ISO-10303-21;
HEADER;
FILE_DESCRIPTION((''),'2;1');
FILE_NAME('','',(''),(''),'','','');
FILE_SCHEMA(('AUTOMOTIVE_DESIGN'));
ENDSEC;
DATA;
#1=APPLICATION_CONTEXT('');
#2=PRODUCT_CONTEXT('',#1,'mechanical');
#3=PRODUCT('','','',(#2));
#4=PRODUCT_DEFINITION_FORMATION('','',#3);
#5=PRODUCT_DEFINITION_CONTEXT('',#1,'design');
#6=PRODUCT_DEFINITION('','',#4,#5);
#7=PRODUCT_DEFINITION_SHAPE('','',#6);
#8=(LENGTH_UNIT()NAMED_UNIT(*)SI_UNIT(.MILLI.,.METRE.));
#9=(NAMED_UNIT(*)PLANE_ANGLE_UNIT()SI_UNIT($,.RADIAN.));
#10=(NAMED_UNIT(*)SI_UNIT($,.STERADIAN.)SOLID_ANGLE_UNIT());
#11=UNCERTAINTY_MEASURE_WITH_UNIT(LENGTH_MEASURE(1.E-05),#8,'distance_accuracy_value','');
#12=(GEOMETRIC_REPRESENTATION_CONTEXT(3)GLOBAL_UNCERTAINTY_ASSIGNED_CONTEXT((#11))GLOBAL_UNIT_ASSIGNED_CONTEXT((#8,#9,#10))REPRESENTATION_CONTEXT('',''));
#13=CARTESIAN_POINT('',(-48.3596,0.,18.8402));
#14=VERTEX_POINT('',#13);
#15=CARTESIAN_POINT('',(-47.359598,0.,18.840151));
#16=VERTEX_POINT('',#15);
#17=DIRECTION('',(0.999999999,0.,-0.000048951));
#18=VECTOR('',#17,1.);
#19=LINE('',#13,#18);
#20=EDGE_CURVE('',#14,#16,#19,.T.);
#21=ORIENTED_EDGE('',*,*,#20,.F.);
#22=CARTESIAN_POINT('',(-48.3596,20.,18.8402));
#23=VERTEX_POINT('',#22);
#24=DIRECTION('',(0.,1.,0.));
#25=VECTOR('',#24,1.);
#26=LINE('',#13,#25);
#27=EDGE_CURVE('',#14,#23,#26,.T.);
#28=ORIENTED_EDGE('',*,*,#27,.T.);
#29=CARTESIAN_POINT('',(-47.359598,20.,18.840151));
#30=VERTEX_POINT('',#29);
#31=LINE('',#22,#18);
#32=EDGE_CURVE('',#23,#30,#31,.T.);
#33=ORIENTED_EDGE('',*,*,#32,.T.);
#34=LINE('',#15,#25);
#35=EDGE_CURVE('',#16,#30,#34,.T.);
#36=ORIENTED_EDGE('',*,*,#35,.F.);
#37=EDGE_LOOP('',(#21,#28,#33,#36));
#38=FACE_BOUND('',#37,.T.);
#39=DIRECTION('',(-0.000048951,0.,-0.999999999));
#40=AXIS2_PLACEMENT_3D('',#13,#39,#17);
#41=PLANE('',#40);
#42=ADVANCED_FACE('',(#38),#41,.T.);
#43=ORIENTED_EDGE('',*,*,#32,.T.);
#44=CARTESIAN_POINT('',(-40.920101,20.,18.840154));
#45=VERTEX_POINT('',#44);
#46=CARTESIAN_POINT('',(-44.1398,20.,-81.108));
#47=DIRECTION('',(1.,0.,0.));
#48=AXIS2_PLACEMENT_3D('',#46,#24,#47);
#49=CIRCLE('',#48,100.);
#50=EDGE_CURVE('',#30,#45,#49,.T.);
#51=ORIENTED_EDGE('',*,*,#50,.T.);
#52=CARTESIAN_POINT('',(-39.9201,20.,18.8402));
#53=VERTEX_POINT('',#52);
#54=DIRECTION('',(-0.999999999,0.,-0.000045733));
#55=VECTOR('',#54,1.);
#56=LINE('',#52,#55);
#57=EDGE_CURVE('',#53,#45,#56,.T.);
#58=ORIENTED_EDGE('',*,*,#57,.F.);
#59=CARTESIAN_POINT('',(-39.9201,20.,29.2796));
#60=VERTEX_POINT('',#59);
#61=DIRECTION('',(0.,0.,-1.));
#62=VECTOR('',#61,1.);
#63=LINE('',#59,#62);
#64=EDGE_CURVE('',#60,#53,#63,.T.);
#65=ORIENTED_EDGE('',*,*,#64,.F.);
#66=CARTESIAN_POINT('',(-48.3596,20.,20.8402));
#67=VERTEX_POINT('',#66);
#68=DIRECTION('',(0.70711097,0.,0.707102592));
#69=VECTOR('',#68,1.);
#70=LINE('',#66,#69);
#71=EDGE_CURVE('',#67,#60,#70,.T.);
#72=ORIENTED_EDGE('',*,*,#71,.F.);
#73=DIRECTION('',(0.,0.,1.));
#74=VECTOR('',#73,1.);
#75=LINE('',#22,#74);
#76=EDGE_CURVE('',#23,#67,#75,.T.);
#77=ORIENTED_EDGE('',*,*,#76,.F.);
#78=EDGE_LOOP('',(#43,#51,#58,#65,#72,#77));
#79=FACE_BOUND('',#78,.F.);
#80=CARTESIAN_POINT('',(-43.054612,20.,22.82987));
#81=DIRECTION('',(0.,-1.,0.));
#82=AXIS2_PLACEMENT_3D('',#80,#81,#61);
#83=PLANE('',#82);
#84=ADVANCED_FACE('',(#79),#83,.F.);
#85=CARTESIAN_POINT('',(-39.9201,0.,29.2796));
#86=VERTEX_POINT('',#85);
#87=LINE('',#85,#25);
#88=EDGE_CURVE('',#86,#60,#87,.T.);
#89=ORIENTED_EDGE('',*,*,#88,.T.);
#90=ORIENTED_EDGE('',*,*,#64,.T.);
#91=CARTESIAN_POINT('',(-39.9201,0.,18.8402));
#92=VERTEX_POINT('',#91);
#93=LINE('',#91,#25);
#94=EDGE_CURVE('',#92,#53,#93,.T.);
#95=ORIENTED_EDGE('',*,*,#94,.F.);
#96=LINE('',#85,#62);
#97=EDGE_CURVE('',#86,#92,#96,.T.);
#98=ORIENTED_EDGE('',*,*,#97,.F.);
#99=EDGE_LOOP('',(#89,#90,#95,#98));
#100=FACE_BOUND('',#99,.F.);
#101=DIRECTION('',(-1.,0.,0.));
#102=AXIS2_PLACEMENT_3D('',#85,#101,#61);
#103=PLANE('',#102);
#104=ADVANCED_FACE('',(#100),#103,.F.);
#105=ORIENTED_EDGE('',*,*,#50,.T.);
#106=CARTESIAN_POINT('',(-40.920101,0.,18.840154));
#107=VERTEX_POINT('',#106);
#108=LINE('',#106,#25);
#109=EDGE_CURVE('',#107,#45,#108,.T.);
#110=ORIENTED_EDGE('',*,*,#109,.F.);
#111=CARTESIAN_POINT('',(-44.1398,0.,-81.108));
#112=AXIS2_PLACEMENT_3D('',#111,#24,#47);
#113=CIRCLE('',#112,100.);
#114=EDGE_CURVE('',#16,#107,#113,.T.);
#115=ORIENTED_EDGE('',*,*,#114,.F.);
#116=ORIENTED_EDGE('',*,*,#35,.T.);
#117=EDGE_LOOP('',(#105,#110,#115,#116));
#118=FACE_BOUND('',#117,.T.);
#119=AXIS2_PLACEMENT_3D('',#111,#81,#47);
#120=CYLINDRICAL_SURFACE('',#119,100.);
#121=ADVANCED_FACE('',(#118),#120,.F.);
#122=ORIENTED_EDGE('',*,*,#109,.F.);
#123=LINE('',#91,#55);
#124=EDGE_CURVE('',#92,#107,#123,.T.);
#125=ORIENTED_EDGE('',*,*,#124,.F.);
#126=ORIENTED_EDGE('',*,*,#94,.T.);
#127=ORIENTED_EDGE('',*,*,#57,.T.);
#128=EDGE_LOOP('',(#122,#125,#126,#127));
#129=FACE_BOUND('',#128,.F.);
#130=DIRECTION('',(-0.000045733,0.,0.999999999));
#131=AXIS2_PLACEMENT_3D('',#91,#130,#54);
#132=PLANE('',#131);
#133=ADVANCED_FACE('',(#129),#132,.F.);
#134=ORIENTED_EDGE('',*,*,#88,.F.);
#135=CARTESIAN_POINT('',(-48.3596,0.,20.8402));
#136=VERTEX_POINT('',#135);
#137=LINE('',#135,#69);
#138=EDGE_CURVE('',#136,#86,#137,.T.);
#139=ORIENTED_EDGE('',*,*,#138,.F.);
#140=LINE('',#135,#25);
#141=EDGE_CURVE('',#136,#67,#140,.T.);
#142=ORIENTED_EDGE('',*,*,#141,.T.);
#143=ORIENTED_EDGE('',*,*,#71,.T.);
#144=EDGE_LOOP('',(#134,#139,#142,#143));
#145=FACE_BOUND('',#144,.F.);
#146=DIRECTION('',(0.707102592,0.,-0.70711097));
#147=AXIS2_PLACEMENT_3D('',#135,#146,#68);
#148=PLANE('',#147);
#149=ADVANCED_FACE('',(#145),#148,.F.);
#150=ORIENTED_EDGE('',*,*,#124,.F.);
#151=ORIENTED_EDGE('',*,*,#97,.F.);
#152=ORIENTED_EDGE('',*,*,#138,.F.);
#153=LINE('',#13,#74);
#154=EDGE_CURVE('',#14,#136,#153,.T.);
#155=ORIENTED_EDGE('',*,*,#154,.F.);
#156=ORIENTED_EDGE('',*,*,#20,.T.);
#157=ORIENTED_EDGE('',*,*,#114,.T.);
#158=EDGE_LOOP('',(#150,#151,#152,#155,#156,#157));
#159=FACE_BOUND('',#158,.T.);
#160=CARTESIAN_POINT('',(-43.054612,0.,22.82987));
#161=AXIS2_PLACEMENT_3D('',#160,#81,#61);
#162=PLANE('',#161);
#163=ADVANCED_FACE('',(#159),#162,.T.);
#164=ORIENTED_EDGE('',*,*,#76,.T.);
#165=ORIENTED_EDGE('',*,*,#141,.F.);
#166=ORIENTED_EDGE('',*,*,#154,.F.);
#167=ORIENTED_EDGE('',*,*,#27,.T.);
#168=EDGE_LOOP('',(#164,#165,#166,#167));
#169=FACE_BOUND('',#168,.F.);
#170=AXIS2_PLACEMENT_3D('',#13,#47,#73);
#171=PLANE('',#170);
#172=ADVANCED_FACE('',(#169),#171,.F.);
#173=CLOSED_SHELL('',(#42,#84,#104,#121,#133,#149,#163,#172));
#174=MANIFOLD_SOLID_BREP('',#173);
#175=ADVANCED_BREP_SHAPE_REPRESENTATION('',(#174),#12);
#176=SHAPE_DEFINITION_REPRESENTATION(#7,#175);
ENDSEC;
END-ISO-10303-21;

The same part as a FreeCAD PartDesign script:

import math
import FreeCAD as App
import Part
import Sketcher

V = App.Vector
Q = App.Units.Quantity

doc = App.newDocument("Part")
body = doc.addObject("PartDesign::Body", "Body")

# Sketch on XZ plane
sketch1 = body.newObject("Sketcher::SketchObject", "Sketch")
sketch1.AttachmentSupport = (doc.getObject("XZ_Plane"), [""])
sketch1.MapMode = "FlatFace"
sketch1.addGeometry([
    Part.LineSegment(V(-48.4, 20.8, 0), V(-48.4, 18.8, 0)),  # 0
    Part.LineSegment(V(-48.4, 18.8, 0), V(-47.4, 18.8, 0)),  # 1
    Part.ArcOfCircle(Part.Circle(V(-44.1, -81.1, 0), V(0, 0, 1), 100), math.radians(88.15), math.radians(91.85)),  # 2
    Part.LineSegment(V(-40.9, 18.8, 0), V(-39.9, 18.8, 0)),  # 3
    Part.LineSegment(V(-39.9, 18.8, 0), V(-39.9, 29.3, 0)),  # 4
    Part.LineSegment(V(-39.9, 29.3, 0), V(-48.4, 20.8, 0)),  # 5
], False)
sketch1.addConstraint([
    Sketcher.Constraint("Coincident", 0, 2, 1, 1),
    Sketcher.Constraint("Coincident", 1, 2, 2, 2),
    Sketcher.Constraint("Coincident", 2, 1, 3, 1),
    Sketcher.Constraint("Coincident", 3, 2, 4, 1),
    Sketcher.Constraint("Coincident", 4, 2, 5, 1),
    Sketcher.Constraint("Coincident", 5, 2, 0, 1),
    Sketcher.Constraint("Vertical", 0),
    Sketcher.Constraint("Horizontal", 1),
    Sketcher.Constraint("Horizontal", 3),
    Sketcher.Constraint("Vertical", 4),
    Sketcher.Constraint("Horizontal", 1, 2, 2, 1),
    Sketcher.Constraint("Equal", 1, 3),
    Sketcher.Constraint("DistanceX", 1, 1, 1, 2, Q("1 mm")),
    Sketcher.Constraint("DistanceY", 0, 2, 0, 1, Q("2 mm")),
    Sketcher.Constraint("DistanceX", 3, 2, -1, 1, Q("39.92 mm")),
    Sketcher.Constraint("Angle", 5, Q("-135.0003 deg")),
    Sketcher.Constraint("Radius", 2, Q("99.997 mm")),
    Sketcher.Constraint("DistanceX", 0, 2, -1, 1, Q("48.3596 mm")),
    Sketcher.Constraint("DistanceY", 2, 3, -1, 1, Q("81.105 mm")),
])
pad1 = body.newObject("PartDesign::Pad", "Pad")
pad1.Profile = sketch1
pad1.Length = 20
pad1.Reversed = True

doc.recompute()
